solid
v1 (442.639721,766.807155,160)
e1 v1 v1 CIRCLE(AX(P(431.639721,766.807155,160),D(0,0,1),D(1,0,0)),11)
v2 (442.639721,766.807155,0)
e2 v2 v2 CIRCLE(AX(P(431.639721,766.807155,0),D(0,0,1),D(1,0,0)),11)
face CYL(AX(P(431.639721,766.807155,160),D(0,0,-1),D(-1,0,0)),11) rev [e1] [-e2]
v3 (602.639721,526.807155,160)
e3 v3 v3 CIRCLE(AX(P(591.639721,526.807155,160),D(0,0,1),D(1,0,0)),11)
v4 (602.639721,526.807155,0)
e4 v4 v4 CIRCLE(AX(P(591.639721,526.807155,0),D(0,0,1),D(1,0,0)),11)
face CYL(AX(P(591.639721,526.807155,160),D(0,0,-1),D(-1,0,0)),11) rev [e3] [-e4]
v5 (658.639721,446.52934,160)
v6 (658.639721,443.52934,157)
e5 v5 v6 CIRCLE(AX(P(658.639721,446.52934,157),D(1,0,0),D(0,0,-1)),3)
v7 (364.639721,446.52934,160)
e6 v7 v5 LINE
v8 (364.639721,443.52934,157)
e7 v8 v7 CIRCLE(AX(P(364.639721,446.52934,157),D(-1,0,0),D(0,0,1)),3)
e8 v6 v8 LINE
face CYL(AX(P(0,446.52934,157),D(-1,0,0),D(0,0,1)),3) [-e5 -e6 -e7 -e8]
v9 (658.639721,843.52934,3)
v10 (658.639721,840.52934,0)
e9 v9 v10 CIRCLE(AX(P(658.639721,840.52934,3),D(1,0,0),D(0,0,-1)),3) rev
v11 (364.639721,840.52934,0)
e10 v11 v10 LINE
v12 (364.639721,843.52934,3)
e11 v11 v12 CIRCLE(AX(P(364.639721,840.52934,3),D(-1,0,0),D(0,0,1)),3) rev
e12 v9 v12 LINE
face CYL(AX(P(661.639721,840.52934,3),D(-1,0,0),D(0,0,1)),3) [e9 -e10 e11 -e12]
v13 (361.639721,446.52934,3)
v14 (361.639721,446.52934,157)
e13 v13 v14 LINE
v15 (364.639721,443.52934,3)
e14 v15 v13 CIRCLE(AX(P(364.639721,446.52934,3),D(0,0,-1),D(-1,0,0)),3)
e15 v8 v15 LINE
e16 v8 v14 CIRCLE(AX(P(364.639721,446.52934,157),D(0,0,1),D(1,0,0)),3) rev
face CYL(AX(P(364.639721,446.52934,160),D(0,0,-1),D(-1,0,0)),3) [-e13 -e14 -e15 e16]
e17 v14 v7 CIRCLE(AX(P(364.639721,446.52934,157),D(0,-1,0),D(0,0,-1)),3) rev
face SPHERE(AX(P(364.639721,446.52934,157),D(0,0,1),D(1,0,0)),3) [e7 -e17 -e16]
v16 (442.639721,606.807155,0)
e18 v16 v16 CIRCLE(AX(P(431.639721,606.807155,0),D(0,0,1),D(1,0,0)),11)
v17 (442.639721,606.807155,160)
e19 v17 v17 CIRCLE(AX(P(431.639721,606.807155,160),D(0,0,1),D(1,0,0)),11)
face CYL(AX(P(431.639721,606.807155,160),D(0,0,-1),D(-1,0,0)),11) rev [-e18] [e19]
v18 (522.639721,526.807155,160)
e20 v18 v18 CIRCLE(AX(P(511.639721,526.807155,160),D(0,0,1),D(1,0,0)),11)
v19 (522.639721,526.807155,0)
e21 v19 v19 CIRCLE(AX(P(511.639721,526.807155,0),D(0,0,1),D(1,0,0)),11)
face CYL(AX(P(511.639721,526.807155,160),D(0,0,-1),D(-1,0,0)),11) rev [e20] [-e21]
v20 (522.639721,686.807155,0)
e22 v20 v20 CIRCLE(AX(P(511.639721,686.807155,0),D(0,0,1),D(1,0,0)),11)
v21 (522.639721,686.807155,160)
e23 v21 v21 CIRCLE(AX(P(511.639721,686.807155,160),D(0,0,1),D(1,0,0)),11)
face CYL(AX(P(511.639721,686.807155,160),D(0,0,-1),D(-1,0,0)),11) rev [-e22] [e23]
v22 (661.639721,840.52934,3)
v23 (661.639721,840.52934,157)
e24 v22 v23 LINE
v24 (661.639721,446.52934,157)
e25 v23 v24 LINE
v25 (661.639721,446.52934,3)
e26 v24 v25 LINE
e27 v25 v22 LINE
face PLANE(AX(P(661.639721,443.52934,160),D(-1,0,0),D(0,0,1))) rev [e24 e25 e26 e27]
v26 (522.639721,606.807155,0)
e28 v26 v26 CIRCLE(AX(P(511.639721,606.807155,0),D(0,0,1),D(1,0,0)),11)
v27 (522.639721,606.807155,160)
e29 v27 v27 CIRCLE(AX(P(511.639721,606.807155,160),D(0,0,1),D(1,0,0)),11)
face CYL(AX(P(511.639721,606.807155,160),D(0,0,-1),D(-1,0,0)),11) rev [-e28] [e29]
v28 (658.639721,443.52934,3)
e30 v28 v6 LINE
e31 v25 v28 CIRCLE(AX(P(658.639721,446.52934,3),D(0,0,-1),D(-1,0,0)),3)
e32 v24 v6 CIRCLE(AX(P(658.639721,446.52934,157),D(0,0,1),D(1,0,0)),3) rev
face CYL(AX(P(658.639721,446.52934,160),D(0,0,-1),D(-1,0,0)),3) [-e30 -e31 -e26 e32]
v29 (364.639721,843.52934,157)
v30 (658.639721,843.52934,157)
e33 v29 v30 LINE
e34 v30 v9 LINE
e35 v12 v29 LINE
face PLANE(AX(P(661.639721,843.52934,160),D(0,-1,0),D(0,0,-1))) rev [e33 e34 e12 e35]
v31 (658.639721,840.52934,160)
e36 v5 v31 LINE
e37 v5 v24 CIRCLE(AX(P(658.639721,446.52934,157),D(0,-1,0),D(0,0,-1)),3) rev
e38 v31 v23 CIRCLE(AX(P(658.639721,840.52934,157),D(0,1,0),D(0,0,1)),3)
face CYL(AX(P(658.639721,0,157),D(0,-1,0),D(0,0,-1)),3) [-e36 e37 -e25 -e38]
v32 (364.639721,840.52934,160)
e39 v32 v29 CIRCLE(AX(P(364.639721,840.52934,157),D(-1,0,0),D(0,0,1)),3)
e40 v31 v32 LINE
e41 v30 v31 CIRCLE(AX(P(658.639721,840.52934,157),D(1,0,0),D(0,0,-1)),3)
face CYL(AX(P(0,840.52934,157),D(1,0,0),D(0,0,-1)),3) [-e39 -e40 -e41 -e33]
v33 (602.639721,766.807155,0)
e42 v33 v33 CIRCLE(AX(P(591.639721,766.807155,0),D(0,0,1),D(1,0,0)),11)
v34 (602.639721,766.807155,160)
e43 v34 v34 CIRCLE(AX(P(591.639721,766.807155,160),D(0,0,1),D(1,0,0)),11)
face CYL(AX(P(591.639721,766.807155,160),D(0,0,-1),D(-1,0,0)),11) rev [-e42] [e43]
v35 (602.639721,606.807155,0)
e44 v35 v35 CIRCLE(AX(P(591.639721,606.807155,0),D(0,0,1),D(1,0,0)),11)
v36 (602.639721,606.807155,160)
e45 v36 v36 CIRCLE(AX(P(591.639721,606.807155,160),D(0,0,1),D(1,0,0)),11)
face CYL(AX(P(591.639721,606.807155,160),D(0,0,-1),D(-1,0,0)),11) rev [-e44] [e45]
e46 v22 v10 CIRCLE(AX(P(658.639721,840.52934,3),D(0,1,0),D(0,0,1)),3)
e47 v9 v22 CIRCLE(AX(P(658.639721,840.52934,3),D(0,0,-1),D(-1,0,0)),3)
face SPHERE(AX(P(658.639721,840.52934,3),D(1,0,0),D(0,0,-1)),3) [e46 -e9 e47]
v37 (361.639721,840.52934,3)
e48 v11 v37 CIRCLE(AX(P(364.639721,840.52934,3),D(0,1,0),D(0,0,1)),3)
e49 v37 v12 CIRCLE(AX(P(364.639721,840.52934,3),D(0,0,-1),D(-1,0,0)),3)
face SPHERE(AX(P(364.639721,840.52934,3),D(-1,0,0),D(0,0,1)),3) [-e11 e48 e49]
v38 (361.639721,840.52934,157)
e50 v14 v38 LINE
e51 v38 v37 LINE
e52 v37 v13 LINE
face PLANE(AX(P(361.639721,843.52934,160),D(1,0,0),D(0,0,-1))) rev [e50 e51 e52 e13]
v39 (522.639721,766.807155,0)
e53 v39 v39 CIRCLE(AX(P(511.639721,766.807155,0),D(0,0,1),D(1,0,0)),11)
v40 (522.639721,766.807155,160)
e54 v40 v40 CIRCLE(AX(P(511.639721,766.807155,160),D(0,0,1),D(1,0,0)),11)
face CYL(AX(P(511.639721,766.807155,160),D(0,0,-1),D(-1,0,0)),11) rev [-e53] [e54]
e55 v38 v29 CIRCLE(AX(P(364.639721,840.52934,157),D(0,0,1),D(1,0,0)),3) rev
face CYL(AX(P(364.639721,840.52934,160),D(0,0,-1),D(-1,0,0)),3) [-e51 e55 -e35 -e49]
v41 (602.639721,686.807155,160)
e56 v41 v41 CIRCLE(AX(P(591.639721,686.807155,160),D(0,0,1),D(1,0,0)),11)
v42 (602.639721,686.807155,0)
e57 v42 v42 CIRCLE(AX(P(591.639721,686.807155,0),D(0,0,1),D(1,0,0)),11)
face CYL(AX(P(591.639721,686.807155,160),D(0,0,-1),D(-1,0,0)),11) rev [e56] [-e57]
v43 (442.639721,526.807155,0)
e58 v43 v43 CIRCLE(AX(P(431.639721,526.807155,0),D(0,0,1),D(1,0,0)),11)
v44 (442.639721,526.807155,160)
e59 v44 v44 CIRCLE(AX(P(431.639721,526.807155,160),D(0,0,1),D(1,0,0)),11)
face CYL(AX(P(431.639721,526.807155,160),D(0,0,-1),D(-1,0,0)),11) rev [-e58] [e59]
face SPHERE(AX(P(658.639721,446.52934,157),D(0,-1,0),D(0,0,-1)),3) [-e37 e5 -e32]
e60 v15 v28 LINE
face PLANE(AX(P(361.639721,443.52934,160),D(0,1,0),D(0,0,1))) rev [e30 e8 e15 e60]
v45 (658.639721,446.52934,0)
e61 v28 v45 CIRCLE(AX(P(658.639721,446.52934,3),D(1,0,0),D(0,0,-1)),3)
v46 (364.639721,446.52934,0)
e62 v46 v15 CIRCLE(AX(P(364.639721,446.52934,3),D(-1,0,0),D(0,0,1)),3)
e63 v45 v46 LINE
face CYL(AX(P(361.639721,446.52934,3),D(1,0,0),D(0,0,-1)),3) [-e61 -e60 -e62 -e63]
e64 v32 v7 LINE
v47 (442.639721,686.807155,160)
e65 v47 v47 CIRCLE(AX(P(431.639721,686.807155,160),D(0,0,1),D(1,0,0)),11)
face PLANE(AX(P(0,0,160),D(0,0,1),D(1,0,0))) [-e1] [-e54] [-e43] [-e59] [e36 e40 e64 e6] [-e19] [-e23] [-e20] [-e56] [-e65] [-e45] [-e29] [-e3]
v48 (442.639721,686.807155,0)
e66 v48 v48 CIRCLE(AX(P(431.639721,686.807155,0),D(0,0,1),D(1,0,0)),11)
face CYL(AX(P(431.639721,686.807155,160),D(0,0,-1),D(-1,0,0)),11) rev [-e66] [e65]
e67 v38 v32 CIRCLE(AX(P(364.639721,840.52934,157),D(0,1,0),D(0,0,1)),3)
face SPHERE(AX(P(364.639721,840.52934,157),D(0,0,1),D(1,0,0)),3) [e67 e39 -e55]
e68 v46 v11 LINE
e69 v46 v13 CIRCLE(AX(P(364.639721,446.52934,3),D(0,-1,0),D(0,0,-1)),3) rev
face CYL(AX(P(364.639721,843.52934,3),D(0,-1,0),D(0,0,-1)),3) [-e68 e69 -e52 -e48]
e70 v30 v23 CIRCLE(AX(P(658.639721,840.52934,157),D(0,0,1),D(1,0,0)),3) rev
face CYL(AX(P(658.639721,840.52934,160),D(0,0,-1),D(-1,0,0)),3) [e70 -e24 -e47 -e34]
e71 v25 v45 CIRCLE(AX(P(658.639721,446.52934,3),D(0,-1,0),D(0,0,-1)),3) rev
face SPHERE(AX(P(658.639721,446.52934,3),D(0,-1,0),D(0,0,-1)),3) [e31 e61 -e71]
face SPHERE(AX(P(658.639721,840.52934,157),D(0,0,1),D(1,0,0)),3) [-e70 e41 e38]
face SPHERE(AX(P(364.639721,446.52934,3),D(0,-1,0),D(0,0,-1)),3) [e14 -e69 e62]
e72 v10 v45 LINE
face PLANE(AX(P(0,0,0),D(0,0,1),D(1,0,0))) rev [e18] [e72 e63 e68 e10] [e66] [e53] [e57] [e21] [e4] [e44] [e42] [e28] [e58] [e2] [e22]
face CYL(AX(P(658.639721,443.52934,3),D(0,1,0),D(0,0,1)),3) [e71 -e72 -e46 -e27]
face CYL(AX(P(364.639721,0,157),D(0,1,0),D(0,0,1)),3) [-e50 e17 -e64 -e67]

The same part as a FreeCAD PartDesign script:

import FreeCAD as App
import Part
import Sketcher

V = App.Vector


def edges_at(feature, points):
    """Names of the edges that pass closest to the given points."""
    edges = feature.Shape.Edges
    near = lambda p: min(range(len(edges)), key=lambda i: edges[i].distToShape(Part.Vertex(*p))[0])
    return sorted({f"Edge{near(p) + 1}" for p in points})

doc = App.newDocument("Part")
body = doc.addObject("PartDesign::Body", "Body")

sketch1 = doc.addObject("Sketcher::SketchObject", "Sketch")
body.addObject(sketch1)
sketch1.AttachmentSupport = (doc.XY_Plane, [""])
sketch1.MapMode = "FlatFace"
sketch1.addGeometry([
    Part.LineSegment(V(361.639721, 843.52934, 0), V(361.639721, 443.52934, 0)),
    Part.LineSegment(V(361.639721, 443.52934, 0), V(661.639721, 443.52934, 0)),
    Part.LineSegment(V(661.639721, 443.52934, 0), V(661.639721, 843.52934, 0)),
    Part.LineSegment(V(661.639721, 843.52934, 0), V(361.639721, 843.52934, 0)),
    Part.Circle(V(431.639721, 526.807155, 0), V(0, 0, 1), 11),
    Part.Circle(V(431.639721, 606.807155, 0), V(0, 0, 1), 11),
    Part.Circle(V(511.639721, 526.807155, 0), V(0, 0, 1), 11),
    Part.Circle(V(591.639721, 526.807155, 0), V(0, 0, 1), 11),
    Part.Circle(V(511.639721, 606.807155, 0), V(0, 0, 1), 11),
    Part.Circle(V(591.639721, 606.807155, 0), V(0, 0, 1), 11),
    Part.Circle(V(431.639721, 686.807155, 0), V(0, 0, 1), 11),
    Part.Circle(V(431.639721, 766.807155, 0), V(0, 0, 1), 11),
    Part.Circle(V(511.639721, 686.807155, 0), V(0, 0, 1), 11),
    Part.Circle(V(591.639721, 686.807155, 0), V(0, 0, 1), 11),
    Part.Circle(V(511.639721, 766.807155, 0), V(0, 0, 1), 11),
    Part.Circle(V(591.639721, 766.807155, 0), V(0, 0, 1), 11),
], False)
sketch1.addConstraint([
    Sketcher.Constraint("Coincident", 0, 2, 1, 1),
    Sketcher.Constraint("Coincident", 1, 2, 2, 1),
    Sketcher.Constraint("Coincident", 2, 2, 3, 1),
    Sketcher.Constraint("Coincident", 3, 2, 0, 1),
    Sketcher.Constraint("Vertical", 0),
    Sketcher.Constraint("Horizontal", 1),
    Sketcher.Constraint("Vertical", 2),
    Sketcher.Constraint("Horizontal", 3),
    Sketcher.Constraint("Equal", 4, 5),
    Sketcher.Constraint("Equal", 5, 6),
    Sketcher.Constraint("Equal", 6, 7),
    Sketcher.Constraint("Equal", 7, 8),
    Sketcher.Constraint("Equal", 8, 9),
    Sketcher.Constraint("Equal", 9, 10),
    Sketcher.Constraint("Equal", 10, 11),
    Sketcher.Constraint("Equal", 11, 12),
    Sketcher.Constraint("Equal", 12, 13),
    Sketcher.Constraint("Equal", 13, 14),
    Sketcher.Constraint("Equal", 14, 15),
    Sketcher.Constraint("Horizontal", 4, 3, 6, 3),
    Sketcher.Constraint("Horizontal", 6, 3, 7, 3),
    Sketcher.Constraint("Horizontal", 5, 3, 8, 3),
    Sketcher.Constraint("Horizontal", 8, 3, 9, 3),
    Sketcher.Constraint("Horizontal", 10, 3, 12, 3),
    Sketcher.Constraint("Horizontal", 12, 3, 13, 3),
    Sketcher.Constraint("Horizontal", 11, 3, 14, 3),
    Sketcher.Constraint("Horizontal", 14, 3, 15, 3),
    Sketcher.Constraint("Vertical", 4, 3, 5, 3),
    Sketcher.Constraint("Vertical", 6, 3, 8, 3),
    Sketcher.Constraint("Vertical", 7, 3, 9, 3),
    Sketcher.Constraint("Vertical", 5, 3, 10, 3),
    Sketcher.Constraint("Vertical", 10, 3, 11, 3),
    Sketcher.Constraint("Vertical", 8, 3, 12, 3),
    Sketcher.Constraint("Vertical", 9, 3, 13, 3),
    Sketcher.Constraint("Vertical", 12, 3, 14, 3),
    Sketcher.Constraint("Vertical", 13, 3, 15, 3),
    Sketcher.Constraint("Diameter", 4, 22.0),
    Sketcher.Constraint("DistanceX", 1, 1, 1, 2, 300.0),
    Sketcher.Constraint("DistanceY", 0, 2, 0, 1, 400.0),
    Sketcher.Constraint("DistanceY", 4, 3, 5, 3, 80.0),
    Sketcher.Constraint("DistanceX", 4, 3, 6, 3, 80.0),
    Sketcher.Constraint("DistanceX", 6, 3, 7, 3, 80.0),
    Sketcher.Constraint("DistanceY", 5, 3, 10, 3, 80.0),
    Sketcher.Constraint("DistanceY", 10, 3, 11, 3, 80.0),
    Sketcher.Constraint("DistanceX", 0, 2, 4, 3, 70.0),
    Sketcher.Constraint("DistanceX", -1, 1, 4, 3, 431.639721),
    Sketcher.Constraint("DistanceY", -1, 1, 0, 2, 443.52934),
    Sketcher.Constraint("DistanceY", -1, 1, 4, 3, 526.807155),
])
pad1 = doc.addObject("PartDesign::Pad", "Pad")
body.addObject(pad1)
pad1.Profile = sketch1
pad1.Length = 160
doc.recompute()

fillet = doc.addObject("PartDesign::Fillet", "Fillet")
body.addObject(fillet)
fillet.Base = (pad1, edges_at(pad1, [
    (661.64, 643.529, 160),
    (511.64, 843.529, 160),
    (361.64, 643.529, 160),
    (511.64, 843.529, 0),
    (661.64, 643.529, 0),
    (511.64, 443.529, 0),
    (361.64, 643.529, 0),
    (361.64, 843.529, 80),
    (661.64, 843.529, 80),
    (661.64, 443.529, 80),
    (361.64, 443.529, 80),
    (511.64, 443.529, 160),
]))
fillet.Radius = 3

doc.recompute()
